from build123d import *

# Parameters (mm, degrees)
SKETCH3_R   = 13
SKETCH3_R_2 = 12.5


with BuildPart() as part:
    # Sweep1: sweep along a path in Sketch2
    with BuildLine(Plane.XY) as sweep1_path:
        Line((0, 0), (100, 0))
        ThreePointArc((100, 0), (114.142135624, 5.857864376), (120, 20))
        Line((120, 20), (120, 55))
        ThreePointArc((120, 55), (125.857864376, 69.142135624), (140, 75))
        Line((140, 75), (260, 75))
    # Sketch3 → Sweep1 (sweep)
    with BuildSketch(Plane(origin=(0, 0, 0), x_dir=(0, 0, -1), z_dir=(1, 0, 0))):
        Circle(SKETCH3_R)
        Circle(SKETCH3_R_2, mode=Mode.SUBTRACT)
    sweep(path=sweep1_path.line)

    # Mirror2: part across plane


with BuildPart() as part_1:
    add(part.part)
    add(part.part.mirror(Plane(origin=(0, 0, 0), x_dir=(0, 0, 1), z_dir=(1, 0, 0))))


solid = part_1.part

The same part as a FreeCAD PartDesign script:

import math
import FreeCAD as App
import Part
import Sketcher

doc = App.newDocument("Part")
body = doc.addObject("PartDesign::Body", "Body")

# Sketch on YZ plane
sketch1 = body.newObject("Sketcher::SketchObject", "Sketch")
sketch1.AttachmentSupport = (doc.getObject("YZ_Plane"), [""])
sketch1.MapMode = "FlatFace"
sketch1.addGeometry([
    Part.Circle(App.Vector(0, 0, 0), App.Vector(0, 0, 1), 13),
    Part.Circle(App.Vector(0, 0, 0), App.Vector(0, 0, 1), 12.5),
], False)
sketch1.addConstraint([
    Sketcher.Constraint("Coincident", 0, 3, -1, 1),
    Sketcher.Constraint("Coincident", 1, 3, -1, 1),
    Sketcher.Constraint("Diameter", 0, 26.0),
    Sketcher.Constraint("Diameter", 1, 25.0),
])

# Sketch on XY plane
sketch2 = body.newObject("Sketcher::SketchObject", "Sketch001")
sketch2.AttachmentSupport = (doc.getObject("XY_Plane"), [""])
sketch2.MapMode = "FlatFace"
sketch2.addGeometry([
    Part.LineSegment(App.Vector(0, 0, 0), App.Vector(100, 0, 0)),  # 0
    Part.ArcOfCircle(Part.Circle(App.Vector(100, 20, 0), App.Vector(0, 0, 1), 20), math.radians(-90), math.radians(0)),  # 1
    Part.LineSegment(App.Vector(120, 20, 0), App.Vector(120, 55, 0)),  # 2
    Part.ArcOfCircle(Part.Circle(App.Vector(140, 55, 0), App.Vector(0, 0, 1), 20), math.radians(90), math.radians(180)),  # 3
    Part.LineSegment(App.Vector(140, 75, 0), App.Vector(260, 75, 0)),  # 4
], False)
sketch2.addConstraint([
    Sketcher.Constraint("Tangent", 0, 2, 1, 1),
    Sketcher.Constraint("Tangent", 1, 2, 2, 1),
    Sketcher.Constraint("Tangent", 2, 2, 3, 2),
    Sketcher.Constraint("Tangent", 3, 1, 4, 1),
    Sketcher.Constraint("Horizontal", 0),
    Sketcher.Constraint("Vertical", 2),
    Sketcher.Constraint("Horizontal", 4),
    Sketcher.Constraint("Coincident", 0, 1, -1, 1),
    Sketcher.Constraint("Equal", 1, 3),
    Sketcher.Constraint("Radius", 1, 20.0),
    Sketcher.Constraint("DistanceX", 0, 1, 0, 2, 100.0),
    Sketcher.Constraint("DistanceX", 4, 1, 4, 2, 120.0),
    Sketcher.Constraint("DistanceY", 2, 1, 2, 2, 35.0),
])
doc.recompute()

additivepipe = body.newObject("PartDesign::AdditivePipe", "AdditivePipe")
additivepipe.Profile = sketch1
additivepipe.Spine = (sketch2, ["Edge1", "Edge2", "Edge3", "Edge4", "Edge5"])
body2 = doc.addObject("PartDesign::Body", "Body001")
doc.recompute()

body2.BaseFeature = body
doc.recompute()

mirroring = doc.addObject("Part::Mirroring", "Mirroring")
mirroring.Source = body
mirroring.Base = App.Vector(0, 0, 0)
mirroring.Normal = App.Vector(1, 0, 0)
body3 = doc.addObject("PartDesign::Body", "Body002")
body3.BaseFeature = mirroring
boolean = body2.newObject("PartDesign::Boolean", "Boolean")
boolean.Type = "Fuse"
boolean.addObjects([body3])
doc.recompute()
mirroring.Visibility = False

doc.recompute()
